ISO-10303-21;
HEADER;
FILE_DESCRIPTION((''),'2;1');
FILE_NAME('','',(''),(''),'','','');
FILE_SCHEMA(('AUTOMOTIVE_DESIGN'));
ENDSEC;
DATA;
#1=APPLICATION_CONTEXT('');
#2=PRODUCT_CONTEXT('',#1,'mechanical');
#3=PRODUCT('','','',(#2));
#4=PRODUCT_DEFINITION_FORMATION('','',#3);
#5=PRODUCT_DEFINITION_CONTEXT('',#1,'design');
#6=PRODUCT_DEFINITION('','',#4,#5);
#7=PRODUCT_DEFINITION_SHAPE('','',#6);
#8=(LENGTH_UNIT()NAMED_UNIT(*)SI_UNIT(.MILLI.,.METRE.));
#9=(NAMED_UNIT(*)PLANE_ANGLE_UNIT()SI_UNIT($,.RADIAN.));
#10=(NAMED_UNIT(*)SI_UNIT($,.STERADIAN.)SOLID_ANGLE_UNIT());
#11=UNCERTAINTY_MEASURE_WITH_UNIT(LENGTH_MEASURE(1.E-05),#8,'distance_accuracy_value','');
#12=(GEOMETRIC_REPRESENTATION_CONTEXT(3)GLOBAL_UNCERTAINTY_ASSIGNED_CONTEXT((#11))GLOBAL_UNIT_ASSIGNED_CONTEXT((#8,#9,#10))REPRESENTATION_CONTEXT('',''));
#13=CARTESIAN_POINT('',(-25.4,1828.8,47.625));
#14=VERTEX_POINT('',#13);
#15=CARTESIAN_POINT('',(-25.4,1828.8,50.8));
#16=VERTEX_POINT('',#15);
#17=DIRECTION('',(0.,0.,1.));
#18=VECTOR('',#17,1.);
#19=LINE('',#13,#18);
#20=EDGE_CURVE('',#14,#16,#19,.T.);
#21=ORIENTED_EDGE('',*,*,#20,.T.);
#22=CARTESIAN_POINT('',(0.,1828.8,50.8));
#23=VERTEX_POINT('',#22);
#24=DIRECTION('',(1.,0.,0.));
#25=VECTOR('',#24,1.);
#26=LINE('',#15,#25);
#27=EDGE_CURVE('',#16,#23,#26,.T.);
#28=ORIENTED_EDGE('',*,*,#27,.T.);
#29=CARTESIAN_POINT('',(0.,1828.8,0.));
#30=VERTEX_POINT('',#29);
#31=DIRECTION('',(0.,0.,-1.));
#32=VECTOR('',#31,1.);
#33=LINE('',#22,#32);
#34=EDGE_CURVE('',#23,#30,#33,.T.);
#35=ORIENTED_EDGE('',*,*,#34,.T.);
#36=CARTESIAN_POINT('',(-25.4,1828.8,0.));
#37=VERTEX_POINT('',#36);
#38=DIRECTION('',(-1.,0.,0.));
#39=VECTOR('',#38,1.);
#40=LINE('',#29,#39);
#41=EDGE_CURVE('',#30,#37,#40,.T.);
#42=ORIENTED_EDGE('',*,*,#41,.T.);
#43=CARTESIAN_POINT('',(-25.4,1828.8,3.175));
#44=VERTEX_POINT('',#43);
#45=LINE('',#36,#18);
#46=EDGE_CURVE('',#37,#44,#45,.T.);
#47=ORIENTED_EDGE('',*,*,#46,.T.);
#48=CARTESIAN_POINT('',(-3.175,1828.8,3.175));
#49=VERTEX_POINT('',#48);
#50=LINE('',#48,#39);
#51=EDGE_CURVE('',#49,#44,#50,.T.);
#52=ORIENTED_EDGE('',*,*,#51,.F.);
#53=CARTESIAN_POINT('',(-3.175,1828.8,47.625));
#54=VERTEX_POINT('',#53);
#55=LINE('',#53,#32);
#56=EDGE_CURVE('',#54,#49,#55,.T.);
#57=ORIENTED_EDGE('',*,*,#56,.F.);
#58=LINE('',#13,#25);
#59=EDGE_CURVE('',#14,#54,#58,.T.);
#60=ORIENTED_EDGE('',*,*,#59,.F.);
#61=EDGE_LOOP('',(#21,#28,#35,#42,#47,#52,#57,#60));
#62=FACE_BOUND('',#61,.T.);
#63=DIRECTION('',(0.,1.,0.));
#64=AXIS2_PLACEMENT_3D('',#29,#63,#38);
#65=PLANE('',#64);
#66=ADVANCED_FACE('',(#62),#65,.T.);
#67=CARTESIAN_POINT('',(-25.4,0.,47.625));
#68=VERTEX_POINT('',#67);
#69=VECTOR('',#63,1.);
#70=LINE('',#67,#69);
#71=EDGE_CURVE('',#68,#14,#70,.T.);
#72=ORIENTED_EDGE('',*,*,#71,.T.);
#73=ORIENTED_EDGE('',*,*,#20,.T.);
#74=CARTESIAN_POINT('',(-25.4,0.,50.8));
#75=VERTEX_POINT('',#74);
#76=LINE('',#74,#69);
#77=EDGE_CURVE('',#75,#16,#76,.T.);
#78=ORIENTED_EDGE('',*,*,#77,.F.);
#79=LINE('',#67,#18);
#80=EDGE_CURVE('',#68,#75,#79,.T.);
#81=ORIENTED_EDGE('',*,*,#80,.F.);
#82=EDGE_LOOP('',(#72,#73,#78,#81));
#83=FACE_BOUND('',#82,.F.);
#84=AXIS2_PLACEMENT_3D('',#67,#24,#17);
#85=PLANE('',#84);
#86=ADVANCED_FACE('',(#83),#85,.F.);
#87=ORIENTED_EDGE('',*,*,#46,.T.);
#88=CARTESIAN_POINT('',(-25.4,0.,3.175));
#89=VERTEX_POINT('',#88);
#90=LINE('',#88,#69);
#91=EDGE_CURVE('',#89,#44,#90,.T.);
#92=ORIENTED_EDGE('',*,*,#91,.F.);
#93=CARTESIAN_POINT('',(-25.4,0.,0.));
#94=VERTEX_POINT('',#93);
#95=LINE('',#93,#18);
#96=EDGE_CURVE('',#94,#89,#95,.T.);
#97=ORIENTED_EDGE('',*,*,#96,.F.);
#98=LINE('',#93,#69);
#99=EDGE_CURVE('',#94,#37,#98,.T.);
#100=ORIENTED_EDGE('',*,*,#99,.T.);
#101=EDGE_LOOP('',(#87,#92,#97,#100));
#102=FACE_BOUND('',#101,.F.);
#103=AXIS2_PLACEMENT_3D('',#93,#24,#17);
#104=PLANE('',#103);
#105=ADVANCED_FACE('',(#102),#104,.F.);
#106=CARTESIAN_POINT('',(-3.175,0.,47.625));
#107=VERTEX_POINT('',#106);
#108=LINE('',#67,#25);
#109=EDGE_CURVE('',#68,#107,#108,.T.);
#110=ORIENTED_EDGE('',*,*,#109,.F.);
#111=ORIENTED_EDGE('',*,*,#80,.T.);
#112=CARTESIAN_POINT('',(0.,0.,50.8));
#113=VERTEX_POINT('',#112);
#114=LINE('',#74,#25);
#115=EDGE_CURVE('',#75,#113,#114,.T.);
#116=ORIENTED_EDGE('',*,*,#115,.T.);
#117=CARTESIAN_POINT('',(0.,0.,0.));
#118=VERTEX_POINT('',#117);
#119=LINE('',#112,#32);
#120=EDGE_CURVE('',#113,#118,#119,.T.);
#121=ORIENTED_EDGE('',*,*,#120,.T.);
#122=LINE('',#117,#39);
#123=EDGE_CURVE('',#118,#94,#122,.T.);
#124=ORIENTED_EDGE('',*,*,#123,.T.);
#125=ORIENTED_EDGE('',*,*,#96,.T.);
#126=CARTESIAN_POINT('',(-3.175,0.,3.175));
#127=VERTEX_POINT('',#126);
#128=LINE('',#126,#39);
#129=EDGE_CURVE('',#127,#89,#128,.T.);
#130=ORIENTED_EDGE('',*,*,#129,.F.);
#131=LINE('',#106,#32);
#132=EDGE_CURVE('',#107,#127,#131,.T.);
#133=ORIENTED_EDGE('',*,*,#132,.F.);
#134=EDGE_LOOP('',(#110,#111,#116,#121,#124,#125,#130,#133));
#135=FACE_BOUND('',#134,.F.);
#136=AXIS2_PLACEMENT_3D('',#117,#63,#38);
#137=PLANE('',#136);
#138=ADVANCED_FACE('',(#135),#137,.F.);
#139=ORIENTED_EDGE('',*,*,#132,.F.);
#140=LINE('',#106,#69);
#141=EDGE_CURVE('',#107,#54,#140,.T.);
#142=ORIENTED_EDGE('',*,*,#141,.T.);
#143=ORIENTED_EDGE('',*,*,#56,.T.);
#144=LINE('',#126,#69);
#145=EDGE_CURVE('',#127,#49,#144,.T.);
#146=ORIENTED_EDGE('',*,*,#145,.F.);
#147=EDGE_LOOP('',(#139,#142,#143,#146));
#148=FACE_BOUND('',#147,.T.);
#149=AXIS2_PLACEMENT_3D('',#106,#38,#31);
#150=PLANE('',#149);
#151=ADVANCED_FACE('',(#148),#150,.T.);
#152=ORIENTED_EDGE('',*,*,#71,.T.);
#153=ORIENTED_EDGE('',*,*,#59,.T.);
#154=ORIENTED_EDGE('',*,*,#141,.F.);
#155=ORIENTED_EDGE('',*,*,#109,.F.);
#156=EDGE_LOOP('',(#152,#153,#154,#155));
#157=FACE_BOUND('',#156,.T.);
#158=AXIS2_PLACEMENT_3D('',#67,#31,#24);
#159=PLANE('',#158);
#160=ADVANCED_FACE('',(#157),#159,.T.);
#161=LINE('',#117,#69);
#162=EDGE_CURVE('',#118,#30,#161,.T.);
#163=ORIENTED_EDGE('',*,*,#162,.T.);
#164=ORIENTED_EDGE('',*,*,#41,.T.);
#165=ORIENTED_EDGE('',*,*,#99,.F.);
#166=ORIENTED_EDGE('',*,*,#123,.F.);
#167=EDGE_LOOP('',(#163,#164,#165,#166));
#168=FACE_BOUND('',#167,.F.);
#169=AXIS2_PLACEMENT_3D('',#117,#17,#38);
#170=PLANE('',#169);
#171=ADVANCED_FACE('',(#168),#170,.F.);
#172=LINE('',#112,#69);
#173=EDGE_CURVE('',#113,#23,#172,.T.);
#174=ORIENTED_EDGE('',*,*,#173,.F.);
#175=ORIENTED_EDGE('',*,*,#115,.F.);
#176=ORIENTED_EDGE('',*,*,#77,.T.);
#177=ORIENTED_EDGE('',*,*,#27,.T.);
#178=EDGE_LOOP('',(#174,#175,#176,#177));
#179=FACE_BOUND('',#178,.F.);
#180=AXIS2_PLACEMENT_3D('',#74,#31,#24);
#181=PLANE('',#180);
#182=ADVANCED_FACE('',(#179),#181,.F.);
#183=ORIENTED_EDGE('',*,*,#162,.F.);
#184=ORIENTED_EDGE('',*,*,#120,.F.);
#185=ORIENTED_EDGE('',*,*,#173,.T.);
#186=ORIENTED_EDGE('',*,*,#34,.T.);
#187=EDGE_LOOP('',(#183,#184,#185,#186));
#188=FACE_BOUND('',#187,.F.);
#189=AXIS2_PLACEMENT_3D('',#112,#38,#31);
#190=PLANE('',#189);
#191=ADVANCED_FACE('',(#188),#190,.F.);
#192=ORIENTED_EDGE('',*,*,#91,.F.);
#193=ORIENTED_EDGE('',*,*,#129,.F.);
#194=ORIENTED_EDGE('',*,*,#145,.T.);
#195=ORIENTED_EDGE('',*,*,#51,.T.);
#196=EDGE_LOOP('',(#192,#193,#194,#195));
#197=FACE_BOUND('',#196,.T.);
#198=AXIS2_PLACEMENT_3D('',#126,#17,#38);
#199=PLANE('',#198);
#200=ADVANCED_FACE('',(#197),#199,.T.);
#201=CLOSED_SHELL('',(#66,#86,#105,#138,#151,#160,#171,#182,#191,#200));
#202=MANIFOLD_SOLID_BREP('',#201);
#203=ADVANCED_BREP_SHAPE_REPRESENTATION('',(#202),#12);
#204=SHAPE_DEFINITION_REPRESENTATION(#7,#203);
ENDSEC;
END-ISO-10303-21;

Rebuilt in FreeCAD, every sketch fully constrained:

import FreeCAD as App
import Part
import Sketcher
Q = App.Units.Quantity

doc = App.newDocument("Part")
params = doc.addObject("Spreadsheet::Sheet", "Params")
for row, (alias, value) in enumerate([
    ("sketch1_width", "1 in"),
    ("sketch1_height", "2 in"),
    ("sketch1_height2", "0.125 in"),
    ("pad1_length", "72 in"),
], start=1):
    params.set(f"A{row}", alias)
    params.set(f"B{row}", "=" + value)
    params.setAlias(f"B{row}", alias)

body = doc.addObject("PartDesign::Body", "Body")

sketch1 = body.newObject("Sketcher::SketchObject", "Sketch")
sketch1.AttachmentSupport = (doc.getObject("XZ_Plane"), [""])
sketch1.MapMode = "FlatFace"
sketch1.addGeometry([
    Part.LineSegment(App.Vector(0, 50.8, 0), App.Vector(0, 0, 0)),
    Part.LineSegment(App.Vector(0, 0, 0), App.Vector(-25.4, 0, 0)),
    Part.LineSegment(App.Vector(-25.4, 0, 0), App.Vector(-25.4, 3.2, 0)),
    Part.LineSegment(App.Vector(-25.4, 3.2, 0), App.Vector(-3.2, 3.2, 0)),
    Part.LineSegment(App.Vector(-3.2, 3.2, 0), App.Vector(-3.2, 47.6, 0)),
    Part.LineSegment(App.Vector(-3.2, 47.6, 0), App.Vector(-25.4, 47.6, 0)),
    Part.LineSegment(App.Vector(-25.4, 47.6, 0), App.Vector(-25.4, 50.8, 0)),
    Part.LineSegment(App.Vector(-25.4, 50.8, 0), App.Vector(0, 50.8, 0)),
], False)
sketch1.addConstraint([
    Sketcher.Constraint("Coincident", 0, 2, 1, 1),
    Sketcher.Constraint("Coincident", 1, 2, 2, 1),
    Sketcher.Constraint("Coincident", 2, 2, 3, 1),
    Sketcher.Constraint("Coincident", 3, 2, 4, 1),
    Sketcher.Constraint("Coincident", 4, 2, 5, 1),
    Sketcher.Constraint("Coincident", 5, 2, 6, 1),
    Sketcher.Constraint("Coincident", 6, 2, 7, 1),
    Sketcher.Constraint("Coincident", 7, 2, 0, 1),
    Sketcher.Constraint("Vertical", 0),
    Sketcher.Constraint("Horizontal", 1),
    Sketcher.Constraint("Vertical", 2),
    Sketcher.Constraint("Horizontal", 3),
    Sketcher.Constraint("Vertical", 4),
    Sketcher.Constraint("Horizontal", 5),
    Sketcher.Constraint("Vertical", 6),
    Sketcher.Constraint("Horizontal", 7),
    Sketcher.Constraint("Coincident", 0, 2, -1, 1),
    Sketcher.Constraint("Vertical", 2, 2, 5, 2),
    Sketcher.Constraint("Equal", 2, 6),
    Sketcher.Constraint("DistanceX", 1, 2, 1, 1, Q("1 in")),
    Sketcher.Constraint("DistanceY", 0, 2, 0, 1, Q("2 in")),
    Sketcher.Constraint("DistanceY", 2, 1, 2, 2, Q("0.125 in")),
    Sketcher.Constraint("DistanceX", 3, 2, -1, 1, Q("0.125 in")),
])
sketch1.setExpression("Constraints[19]", "Params.sketch1_width")
sketch1.setExpression("Constraints[20]", "Params.sketch1_height")
sketch1.setExpression("Constraints[21]", "Params.sketch1_height2")
pad1 = body.newObject("PartDesign::Pad", "Pad")
pad1.Profile = sketch1
pad1.setExpression("Length", "Params.pad1_length")
pad1.Reversed = True

doc.recompute()
